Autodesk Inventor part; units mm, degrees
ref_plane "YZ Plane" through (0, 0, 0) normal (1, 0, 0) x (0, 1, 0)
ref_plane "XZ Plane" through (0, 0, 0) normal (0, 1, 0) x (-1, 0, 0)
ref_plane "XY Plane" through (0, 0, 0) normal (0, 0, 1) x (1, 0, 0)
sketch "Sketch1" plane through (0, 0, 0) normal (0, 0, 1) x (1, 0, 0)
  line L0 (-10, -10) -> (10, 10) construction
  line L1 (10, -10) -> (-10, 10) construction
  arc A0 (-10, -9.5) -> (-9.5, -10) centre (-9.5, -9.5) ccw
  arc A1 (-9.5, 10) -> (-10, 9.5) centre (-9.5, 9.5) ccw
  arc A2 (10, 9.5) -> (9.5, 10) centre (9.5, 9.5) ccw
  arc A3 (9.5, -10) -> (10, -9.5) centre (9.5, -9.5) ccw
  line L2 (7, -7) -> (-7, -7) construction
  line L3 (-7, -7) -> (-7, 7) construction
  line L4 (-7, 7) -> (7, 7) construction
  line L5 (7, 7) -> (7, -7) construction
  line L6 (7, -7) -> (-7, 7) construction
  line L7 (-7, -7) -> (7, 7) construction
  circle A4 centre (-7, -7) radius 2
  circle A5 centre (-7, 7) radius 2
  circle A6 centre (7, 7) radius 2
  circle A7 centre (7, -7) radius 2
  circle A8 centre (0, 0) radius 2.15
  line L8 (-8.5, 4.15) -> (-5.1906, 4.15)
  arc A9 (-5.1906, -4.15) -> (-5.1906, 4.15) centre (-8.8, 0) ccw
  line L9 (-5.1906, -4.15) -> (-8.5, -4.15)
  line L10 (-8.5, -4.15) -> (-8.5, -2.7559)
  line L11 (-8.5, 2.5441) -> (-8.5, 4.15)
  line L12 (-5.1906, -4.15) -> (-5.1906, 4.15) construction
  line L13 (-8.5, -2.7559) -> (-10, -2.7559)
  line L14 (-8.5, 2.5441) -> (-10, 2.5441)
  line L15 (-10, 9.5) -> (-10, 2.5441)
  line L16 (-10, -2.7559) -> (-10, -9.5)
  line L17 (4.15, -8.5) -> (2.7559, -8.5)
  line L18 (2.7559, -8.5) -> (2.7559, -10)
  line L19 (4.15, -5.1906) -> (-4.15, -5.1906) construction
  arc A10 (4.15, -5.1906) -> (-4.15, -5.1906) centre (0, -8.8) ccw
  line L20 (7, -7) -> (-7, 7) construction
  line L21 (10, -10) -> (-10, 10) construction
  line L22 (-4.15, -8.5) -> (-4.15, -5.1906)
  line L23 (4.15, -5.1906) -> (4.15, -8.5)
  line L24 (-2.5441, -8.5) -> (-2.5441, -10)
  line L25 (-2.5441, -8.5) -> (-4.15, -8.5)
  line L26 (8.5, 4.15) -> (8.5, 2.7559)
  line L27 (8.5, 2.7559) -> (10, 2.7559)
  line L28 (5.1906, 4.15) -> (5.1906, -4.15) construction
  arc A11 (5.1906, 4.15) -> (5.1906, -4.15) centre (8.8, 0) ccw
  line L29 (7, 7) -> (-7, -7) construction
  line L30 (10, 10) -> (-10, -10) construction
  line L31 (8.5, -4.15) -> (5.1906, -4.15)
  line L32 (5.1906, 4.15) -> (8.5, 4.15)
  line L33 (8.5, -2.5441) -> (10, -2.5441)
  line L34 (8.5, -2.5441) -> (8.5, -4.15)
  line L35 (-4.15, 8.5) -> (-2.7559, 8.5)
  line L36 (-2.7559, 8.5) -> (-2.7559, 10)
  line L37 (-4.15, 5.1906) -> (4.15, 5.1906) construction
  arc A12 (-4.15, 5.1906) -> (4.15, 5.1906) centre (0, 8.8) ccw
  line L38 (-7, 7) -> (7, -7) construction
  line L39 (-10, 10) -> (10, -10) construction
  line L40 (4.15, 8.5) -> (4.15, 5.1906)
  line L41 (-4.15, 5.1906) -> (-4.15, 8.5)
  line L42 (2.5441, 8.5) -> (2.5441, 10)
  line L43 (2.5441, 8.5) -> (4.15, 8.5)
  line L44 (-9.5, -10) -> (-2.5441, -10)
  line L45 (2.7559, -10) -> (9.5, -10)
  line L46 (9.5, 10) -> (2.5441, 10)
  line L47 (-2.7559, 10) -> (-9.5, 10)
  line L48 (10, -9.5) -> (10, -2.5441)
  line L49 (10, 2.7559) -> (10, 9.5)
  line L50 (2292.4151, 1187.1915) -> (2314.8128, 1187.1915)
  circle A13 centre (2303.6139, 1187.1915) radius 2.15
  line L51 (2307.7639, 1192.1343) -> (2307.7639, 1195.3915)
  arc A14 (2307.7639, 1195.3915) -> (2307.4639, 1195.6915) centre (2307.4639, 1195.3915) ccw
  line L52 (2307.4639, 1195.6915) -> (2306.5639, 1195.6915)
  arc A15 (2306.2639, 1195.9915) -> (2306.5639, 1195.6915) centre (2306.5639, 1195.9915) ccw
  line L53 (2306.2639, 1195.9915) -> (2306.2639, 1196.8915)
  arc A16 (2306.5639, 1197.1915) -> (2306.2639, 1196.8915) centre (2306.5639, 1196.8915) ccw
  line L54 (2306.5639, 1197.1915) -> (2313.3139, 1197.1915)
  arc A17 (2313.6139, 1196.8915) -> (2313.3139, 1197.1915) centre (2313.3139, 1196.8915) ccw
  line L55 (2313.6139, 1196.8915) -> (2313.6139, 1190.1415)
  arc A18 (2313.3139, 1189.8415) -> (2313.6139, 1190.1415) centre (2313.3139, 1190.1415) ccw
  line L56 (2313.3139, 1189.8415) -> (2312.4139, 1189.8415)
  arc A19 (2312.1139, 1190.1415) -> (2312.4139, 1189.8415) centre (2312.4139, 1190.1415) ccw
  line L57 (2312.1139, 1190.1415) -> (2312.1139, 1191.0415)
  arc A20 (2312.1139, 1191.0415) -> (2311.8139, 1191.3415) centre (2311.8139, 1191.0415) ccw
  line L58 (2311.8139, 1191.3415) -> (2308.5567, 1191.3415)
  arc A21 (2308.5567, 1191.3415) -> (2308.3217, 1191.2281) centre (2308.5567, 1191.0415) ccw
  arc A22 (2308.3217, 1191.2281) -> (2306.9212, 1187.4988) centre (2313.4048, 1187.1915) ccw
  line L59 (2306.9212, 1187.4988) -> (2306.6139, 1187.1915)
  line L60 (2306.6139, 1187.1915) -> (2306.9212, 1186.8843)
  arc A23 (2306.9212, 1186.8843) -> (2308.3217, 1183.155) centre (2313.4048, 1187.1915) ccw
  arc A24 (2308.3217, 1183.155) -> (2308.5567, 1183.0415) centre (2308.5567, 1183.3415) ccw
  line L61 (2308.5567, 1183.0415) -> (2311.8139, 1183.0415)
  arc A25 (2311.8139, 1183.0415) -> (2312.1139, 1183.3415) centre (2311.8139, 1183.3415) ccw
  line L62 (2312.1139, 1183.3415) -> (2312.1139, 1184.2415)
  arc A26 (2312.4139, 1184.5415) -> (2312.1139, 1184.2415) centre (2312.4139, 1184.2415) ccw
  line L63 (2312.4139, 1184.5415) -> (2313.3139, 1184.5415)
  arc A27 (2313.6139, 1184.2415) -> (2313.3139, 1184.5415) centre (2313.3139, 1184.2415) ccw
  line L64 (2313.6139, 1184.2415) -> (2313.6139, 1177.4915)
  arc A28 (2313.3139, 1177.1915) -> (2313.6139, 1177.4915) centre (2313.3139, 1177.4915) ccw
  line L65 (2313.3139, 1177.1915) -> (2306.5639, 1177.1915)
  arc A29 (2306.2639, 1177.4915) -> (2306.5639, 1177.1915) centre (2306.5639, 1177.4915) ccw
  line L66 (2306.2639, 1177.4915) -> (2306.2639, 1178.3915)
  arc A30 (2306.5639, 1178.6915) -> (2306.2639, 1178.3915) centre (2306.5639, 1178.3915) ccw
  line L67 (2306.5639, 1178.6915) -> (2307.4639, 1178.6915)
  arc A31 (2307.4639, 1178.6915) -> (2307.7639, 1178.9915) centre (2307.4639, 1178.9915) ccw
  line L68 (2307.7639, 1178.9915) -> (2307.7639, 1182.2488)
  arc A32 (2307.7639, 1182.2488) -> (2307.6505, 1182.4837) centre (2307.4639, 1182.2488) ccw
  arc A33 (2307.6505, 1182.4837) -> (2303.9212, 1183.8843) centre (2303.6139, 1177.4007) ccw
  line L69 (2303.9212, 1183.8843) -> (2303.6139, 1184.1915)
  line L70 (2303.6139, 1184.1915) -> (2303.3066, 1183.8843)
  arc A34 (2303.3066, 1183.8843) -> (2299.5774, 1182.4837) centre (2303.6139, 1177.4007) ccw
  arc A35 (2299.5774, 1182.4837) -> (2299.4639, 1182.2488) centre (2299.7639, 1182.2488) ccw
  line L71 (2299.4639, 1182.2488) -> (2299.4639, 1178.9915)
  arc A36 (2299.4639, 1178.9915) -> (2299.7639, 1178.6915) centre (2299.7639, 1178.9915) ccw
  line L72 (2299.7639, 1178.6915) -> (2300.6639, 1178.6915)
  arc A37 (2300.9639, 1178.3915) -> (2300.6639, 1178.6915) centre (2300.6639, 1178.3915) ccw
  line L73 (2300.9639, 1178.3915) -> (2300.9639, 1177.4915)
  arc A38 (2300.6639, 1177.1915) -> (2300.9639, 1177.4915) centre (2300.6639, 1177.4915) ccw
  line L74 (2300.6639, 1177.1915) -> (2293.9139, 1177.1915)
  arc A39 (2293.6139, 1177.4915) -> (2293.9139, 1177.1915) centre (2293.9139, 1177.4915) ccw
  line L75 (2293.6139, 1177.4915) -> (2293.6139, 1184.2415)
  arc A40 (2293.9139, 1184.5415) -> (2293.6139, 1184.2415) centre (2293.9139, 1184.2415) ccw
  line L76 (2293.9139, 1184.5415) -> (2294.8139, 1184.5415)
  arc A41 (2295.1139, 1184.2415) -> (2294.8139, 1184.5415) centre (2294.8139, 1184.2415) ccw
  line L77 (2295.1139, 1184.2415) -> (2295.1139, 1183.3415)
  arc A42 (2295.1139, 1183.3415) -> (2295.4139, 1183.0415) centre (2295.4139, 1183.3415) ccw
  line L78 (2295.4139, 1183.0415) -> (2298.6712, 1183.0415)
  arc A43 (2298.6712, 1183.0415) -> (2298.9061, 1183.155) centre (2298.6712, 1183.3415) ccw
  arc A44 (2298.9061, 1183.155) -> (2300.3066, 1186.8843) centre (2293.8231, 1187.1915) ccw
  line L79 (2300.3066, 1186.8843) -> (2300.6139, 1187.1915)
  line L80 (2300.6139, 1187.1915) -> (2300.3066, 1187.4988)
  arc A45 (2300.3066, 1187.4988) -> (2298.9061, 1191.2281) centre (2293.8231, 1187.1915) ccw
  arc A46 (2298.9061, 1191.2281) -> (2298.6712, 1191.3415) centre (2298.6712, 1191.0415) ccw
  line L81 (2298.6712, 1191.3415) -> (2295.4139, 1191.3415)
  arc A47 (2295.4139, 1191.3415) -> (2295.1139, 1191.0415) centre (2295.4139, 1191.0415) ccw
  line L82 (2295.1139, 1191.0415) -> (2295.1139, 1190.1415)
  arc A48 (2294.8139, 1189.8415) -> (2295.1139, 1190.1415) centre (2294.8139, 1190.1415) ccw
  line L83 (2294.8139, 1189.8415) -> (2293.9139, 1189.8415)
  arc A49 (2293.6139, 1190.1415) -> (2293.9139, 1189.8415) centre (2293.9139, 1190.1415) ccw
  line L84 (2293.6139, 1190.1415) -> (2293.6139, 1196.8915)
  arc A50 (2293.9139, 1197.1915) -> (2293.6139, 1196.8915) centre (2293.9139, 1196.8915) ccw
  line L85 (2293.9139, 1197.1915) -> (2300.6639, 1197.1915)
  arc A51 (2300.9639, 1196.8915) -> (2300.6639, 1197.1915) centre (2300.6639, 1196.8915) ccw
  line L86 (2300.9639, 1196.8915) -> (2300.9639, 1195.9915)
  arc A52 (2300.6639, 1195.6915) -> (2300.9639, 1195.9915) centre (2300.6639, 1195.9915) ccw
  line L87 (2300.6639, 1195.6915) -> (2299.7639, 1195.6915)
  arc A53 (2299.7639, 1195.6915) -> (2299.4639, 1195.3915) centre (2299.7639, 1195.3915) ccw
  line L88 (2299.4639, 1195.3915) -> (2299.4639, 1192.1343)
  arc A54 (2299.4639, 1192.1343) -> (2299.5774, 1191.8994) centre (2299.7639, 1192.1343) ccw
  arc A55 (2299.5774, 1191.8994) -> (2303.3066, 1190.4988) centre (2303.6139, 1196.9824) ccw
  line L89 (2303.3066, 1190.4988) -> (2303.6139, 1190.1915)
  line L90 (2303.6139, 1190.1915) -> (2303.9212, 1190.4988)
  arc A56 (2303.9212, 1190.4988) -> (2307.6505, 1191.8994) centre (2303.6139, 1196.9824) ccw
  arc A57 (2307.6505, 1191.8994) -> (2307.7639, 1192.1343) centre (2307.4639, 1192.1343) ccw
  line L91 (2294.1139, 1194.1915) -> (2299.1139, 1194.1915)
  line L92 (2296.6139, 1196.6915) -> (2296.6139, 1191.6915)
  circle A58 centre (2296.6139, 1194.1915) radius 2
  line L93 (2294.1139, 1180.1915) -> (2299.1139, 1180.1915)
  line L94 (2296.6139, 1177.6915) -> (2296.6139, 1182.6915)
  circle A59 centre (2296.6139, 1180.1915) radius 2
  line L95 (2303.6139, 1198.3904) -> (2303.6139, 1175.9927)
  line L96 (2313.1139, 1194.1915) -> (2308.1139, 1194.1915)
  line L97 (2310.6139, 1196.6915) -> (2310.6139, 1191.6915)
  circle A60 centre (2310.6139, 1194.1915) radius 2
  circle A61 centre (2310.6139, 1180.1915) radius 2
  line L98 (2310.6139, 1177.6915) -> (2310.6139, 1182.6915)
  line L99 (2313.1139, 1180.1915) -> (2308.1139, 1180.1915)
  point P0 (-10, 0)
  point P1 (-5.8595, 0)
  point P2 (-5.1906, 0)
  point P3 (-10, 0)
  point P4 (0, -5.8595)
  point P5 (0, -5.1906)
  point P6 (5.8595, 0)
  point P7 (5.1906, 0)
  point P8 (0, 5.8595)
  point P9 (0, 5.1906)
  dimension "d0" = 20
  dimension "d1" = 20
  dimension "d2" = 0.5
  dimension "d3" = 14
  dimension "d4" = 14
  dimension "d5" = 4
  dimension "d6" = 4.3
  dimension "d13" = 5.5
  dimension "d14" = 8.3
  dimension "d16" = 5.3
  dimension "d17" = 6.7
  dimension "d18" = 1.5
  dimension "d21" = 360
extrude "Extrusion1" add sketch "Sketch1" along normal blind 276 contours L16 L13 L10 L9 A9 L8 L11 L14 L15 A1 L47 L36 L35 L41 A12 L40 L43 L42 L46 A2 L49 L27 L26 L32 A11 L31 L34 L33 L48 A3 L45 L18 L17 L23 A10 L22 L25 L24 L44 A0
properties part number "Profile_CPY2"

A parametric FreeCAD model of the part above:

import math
import FreeCAD as App
import Part
import Sketcher

doc = App.newDocument("Part")
body = doc.addObject("PartDesign::Body", "Body")

# Sketch on XY plane
sketch1 = body.newObject("Sketcher::SketchObject", "Sketch")
sketch1.AttachmentSupport = (doc.getObject("XY_Plane"), [""])
sketch1.MapMode = "FlatFace"
sketch1.addGeometry([
    Part.LineSegment(App.Vector(-10, -2.8, 0), App.Vector(-10, -9.5, 0)),  # 0
    Part.ArcOfCircle(Part.Circle(App.Vector(-9.5, -9.5, 0), App.Vector(0, 0, 1), 0.5), math.radians(180), math.radians(270)),  # 1
    Part.LineSegment(App.Vector(-9.5, -10, 0), App.Vector(-2.5, -10, 0)),  # 2
    Part.LineSegment(App.Vector(-2.5, -10, 0), App.Vector(-2.5, -8.5, 0)),  # 3
    Part.LineSegment(App.Vector(-2.5, -8.5, 0), App.Vector(-4.2, -8.5, 0)),  # 4
    Part.LineSegment(App.Vector(-4.2, -8.5, 0), App.Vector(-4.2, -5.2, 0)),  # 5
    Part.ArcOfCircle(Part.Circle(App.Vector(0, -8.8, 0), App.Vector(0, 0, 1), 5.5), math.radians(41), math.radians(139)),  # 6
    Part.LineSegment(App.Vector(4.2, -5.2, 0), App.Vector(4.2, -8.5, 0)),  # 7
    Part.LineSegment(App.Vector(4.2, -8.5, 0), App.Vector(2.8, -8.5, 0)),  # 8
    Part.LineSegment(App.Vector(2.8, -8.5, 0), App.Vector(2.8, -10, 0)),  # 9
    Part.LineSegment(App.Vector(2.8, -10, 0), App.Vector(9.5, -10, 0)),  # 10
    Part.ArcOfCircle(Part.Circle(App.Vector(9.5, -9.5, 0), App.Vector(0, 0, 1), 0.5), math.radians(-90), math.radians(0)),  # 11
    Part.LineSegment(App.Vector(10, -9.5, 0), App.Vector(10, -2.5, 0)),  # 12
    Part.LineSegment(App.Vector(10, -2.5, 0), App.Vector(8.5, -2.5, 0)),  # 13
    Part.LineSegment(App.Vector(8.5, -2.5, 0), App.Vector(8.5, -4.2, 0)),  # 14
    Part.LineSegment(App.Vector(8.5, -4.2, 0), App.Vector(5.2, -4.2, 0)),  # 15
    Part.ArcOfCircle(Part.Circle(App.Vector(8.8, 0, 0), App.Vector(0, 0, 1), 5.5), math.radians(131), math.radians(229)),  # 16
    Part.LineSegment(App.Vector(5.2, 4.2, 0), App.Vector(8.5, 4.2, 0)),  # 17
    Part.LineSegment(App.Vector(8.5, 4.2, 0), App.Vector(8.5, 2.8, 0)),  # 18
    Part.LineSegment(App.Vector(8.5, 2.8, 0), App.Vector(10, 2.8, 0)),  # 19
    Part.LineSegment(App.Vector(10, 2.8, 0), App.Vector(10, 9.5, 0)),  # 20
    Part.ArcOfCircle(Part.Circle(App.Vector(9.5, 9.5, 0), App.Vector(0, 0, 1), 0.5), math.radians(0), math.radians(90)),  # 21
    Part.LineSegment(App.Vector(9.5, 10, 0), App.Vector(2.5, 10, 0)),  # 22
    Part.LineSegment(App.Vector(2.5, 10, 0), App.Vector(2.5, 8.5, 0)),  # 23
    Part.LineSegment(App.Vector(2.5, 8.5, 0), App.Vector(4.2, 8.5, 0)),  # 24
    Part.LineSegment(App.Vector(4.2, 8.5, 0), App.Vector(4.2, 5.2, 0)),  # 25
    Part.ArcOfCircle(Part.Circle(App.Vector(0, 8.8, 0), App.Vector(0, 0, 1), 5.5), math.radians(-139), math.radians(-41)),  # 26
    Part.LineSegment(App.Vector(-4.2, 5.2, 0), App.Vector(-4.2, 8.5, 0)),  # 27
    Part.LineSegment(App.Vector(-4.2, 8.5, 0), App.Vector(-2.8, 8.5, 0)),  # 28
    Part.LineSegment(App.Vector(-2.8, 8.5, 0), App.Vector(-2.8, 10, 0)),  # 29
    Part.LineSegment(App.Vector(-2.8, 10, 0), App.Vector(-9.5, 10, 0)),  # 30
    Part.ArcOfCircle(Part.Circle(App.Vector(-9.5, 9.5, 0), App.Vector(0, 0, 1), 0.5), math.radians(90), math.radians(180)),  # 31
    Part.LineSegment(App.Vector(-10, 9.5, 0), App.Vector(-10, 2.5, 0)),  # 32
    Part.LineSegment(App.Vector(-10, 2.5, 0), App.Vector(-8.5, 2.5, 0)),  # 33
    Part.LineSegment(App.Vector(-8.5, 2.5, 0), App.Vector(-8.5, 4.2, 0)),  # 34
    Part.LineSegment(App.Vector(-8.5, 4.2, 0), App.Vector(-5.2, 4.2, 0)),  # 35
    Part.ArcOfCircle(Part.Circle(App.Vector(-8.8, 0, 0), App.Vector(0, 0, 1), 5.5), math.radians(-49), math.radians(49)),  # 36
    Part.LineSegment(App.Vector(-5.2, -4.2, 0), App.Vector(-8.5, -4.2, 0)),  # 37
    Part.LineSegment(App.Vector(-8.5, -4.2, 0), App.Vector(-8.5, -2.8, 0)),  # 38
    Part.LineSegment(App.Vector(-8.5, -2.8, 0), App.Vector(-10, -2.8, 0)),  # 39
    Part.Circle(App.Vector(-7, -7, 0), App.Vector(0, 0, 1), 2),  # 40
    Part.Circle(App.Vector(7, -7, 0), App.Vector(0, 0, 1), 2),  # 41
    Part.Circle(App.Vector(0, 0, 0), App.Vector(0, 0, 1), 2.1),  # 42
    Part.Circle(App.Vector(-7, 7, 0), App.Vector(0, 0, 1), 2),  # 43
    Part.Circle(App.Vector(7, 7, 0), App.Vector(0, 0, 1), 2),  # 44
], False)
sketch1.addConstraint([
    Sketcher.Constraint("Tangent", 0, 2, 1, 1),
    Sketcher.Constraint("Tangent", 1, 2, 2, 1),
    Sketcher.Constraint("Coincident", 2, 2, 3, 1),
    Sketcher.Constraint("Coincident", 3, 2, 4, 1),
    Sketcher.Constraint("Coincident", 4, 2, 5, 1),
    Sketcher.Constraint("Coincident", 5, 2, 6, 2),
    Sketcher.Constraint("Coincident", 6, 1, 7, 1),
    Sketcher.Constraint("Coincident", 7, 2, 8, 1),
    Sketcher.Constraint("Coincident", 8, 2, 9, 1),
    Sketcher.Constraint("Coincident", 9, 2, 10, 1),
    Sketcher.Constraint("Tangent", 10, 2, 11, 1),
    Sketcher.Constraint("Tangent", 11, 2, 12, 1),
    Sketcher.Constraint("Coincident", 12, 2, 13, 1),
    Sketcher.Constraint("Coincident", 13, 2, 14, 1),
    Sketcher.Constraint("Coincident", 14, 2, 15, 1),
    Sketcher.Constraint("Coincident", 15, 2, 16, 2),
    Sketcher.Constraint("Coincident", 16, 1, 17, 1),
    Sketcher.Constraint("Coincident", 17, 2, 18, 1),
    Sketcher.Constraint("Coincident", 18, 2, 19, 1),
    Sketcher.Constraint("Coincident", 19, 2, 20, 1),
    Sketcher.Constraint("Tangent", 20, 2, 21, 1),
    Sketcher.Constraint("Tangent", 21, 2, 22, 1),
    Sketcher.Constraint("Coincident", 22, 2, 23, 1),
    Sketcher.Constraint("Coincident", 23, 2, 24, 1),
    Sketcher.Constraint("Coincident", 24, 2, 25, 1),
    Sketcher.Constraint("Coincident", 25, 2, 26, 2),
    Sketcher.Constraint("Coincident", 26, 1, 27, 1),
    Sketcher.Constraint("Coincident", 27, 2, 28, 1),
    Sketcher.Constraint("Coincident", 28, 2, 29, 1),
    Sketcher.Constraint("Coincident", 29, 2, 30, 1),
    Sketcher.Constraint("Tangent", 30, 2, 31, 1),
    Sketcher.Constraint("Tangent", 31, 2, 32, 1),
    Sketcher.Constraint("Coincident", 32, 2, 33, 1),
    Sketcher.Constraint("Coincident", 33, 2, 34, 1),
    Sketcher.Constraint("Coincident", 34, 2, 35, 1),
    Sketcher.Constraint("Coincident", 35, 2, 36, 2),
    Sketcher.Constraint("Coincident", 36, 1, 37, 1),
    Sketcher.Constraint("Coincident", 37, 2, 38, 1),
    Sketcher.Constraint("Coincident", 38, 2, 39, 1),
    Sketcher.Constraint("Coincident", 39, 2, 0, 1),
    Sketcher.Constraint("Vertical", 0),
    Sketcher.Constraint("Horizontal", 2),
    Sketcher.Constraint("Vertical", 3),
    Sketcher.Constraint("Horizontal", 4),
    Sketcher.Constraint("Vertical", 5),
    Sketcher.Constraint("Vertical", 7),
    Sketcher.Constraint("Horizontal", 8),
    Sketcher.Constraint("Vertical", 9),
    Sketcher.Constraint("Horizontal", 10),
    Sketcher.Constraint("Vertical", 12),
    Sketcher.Constraint("Horizontal", 13),
    Sketcher.Constraint("Vertical", 14),
    Sketcher.Constraint("Horizontal", 15),
    Sketcher.Constraint("Horizontal", 17),
    Sketcher.Constraint("Vertical", 18),
    Sketcher.Constraint("Horizontal", 19),
    Sketcher.Constraint("Vertical", 20),
    Sketcher.Constraint("Horizontal", 22),
    Sketcher.Constraint("Vertical", 23),
    Sketcher.Constraint("Horizontal", 24),
    Sketcher.Constraint("Vertical", 25),
    Sketcher.Constraint("Vertical", 27),
    Sketcher.Constraint("Horizontal", 28),
    Sketcher.Constraint("Vertical", 29),
    Sketcher.Constraint("Horizontal", 30),
    Sketcher.Constraint("Vertical", 32),
    Sketcher.Constraint("Horizontal", 33),
    Sketcher.Constraint("Vertical", 34),
    Sketcher.Constraint("Horizontal", 35),
    Sketcher.Constraint("Horizontal", 37),
    Sketcher.Constraint("Vertical", 38),
    Sketcher.Constraint("Horizontal", 39),
    Sketcher.Constraint("Coincident", 42, 3, -1, 1),
    Sketcher.Constraint("Equal", 1, 11),
    Sketcher.Constraint("Equal", 6, 16),
    Sketcher.Constraint("Equal", 11, 21),
    Sketcher.Constraint("Equal", 16, 26),
    Sketcher.Constraint("Equal", 21, 31),
    Sketcher.Constraint("Equal", 26, 36),
    Sketcher.Constraint("Equal", 40, 41),
    Sketcher.Constraint("Equal", 41, 43),
    Sketcher.Constraint("Equal", 43, 44),
    Sketcher.Constraint("Symmetric", 1, 3, 21, 3, -1, 1),
    Sketcher.Constraint("Symmetric", 6, 3, 26, 3, -1, 1),
    Sketcher.Constraint("Symmetric", 11, 3, 31, 3, -1, 1),
    Sketcher.Constraint("Symmetric", 16, 3, 36, 3, -1, 1),
    Sketcher.Constraint("Symmetric", 41, 3, 43, 3, -1, 1),
    Sketcher.Constraint("Symmetric", 40, 3, 44, 3, -1, 1),
    Sketcher.Constraint("Symmetric", 3, 2, 23, 2, -1, 1),
    Sketcher.Constraint("Symmetric", 7, 2, 27, 2, -1, 1),
    Sketcher.Constraint("Symmetric", 13, 2, 33, 2, -1, 1),
    Sketcher.Constraint("Symmetric", 17, 2, 37, 2, -1, 1),
    Sketcher.Constraint("Symmetric", 1, 3, 11, 3, -2),
    Sketcher.Constraint("Symmetric", 40, 3, 41, 3, -2),
    Sketcher.Constraint("Symmetric", 5, 2, 6, 1, -2),
    Sketcher.Constraint("Symmetric", 24, 2, 27, 2, -2),
    Sketcher.Constraint("Symmetric", 17, 2, 34, 2, -2),
    Sketcher.Constraint("Symmetric", 15, 2, 36, 1, -2),
    Sketcher.Constraint("Equal", 8, 28),
    Sketcher.Constraint("Equal", 30, 0),
    Sketcher.Constraint("Equal", 39, 3),
    Sketcher.Constraint("Equal", 37, 5),
    Sketcher.Constraint("Equal", 22, 12),
    Sketcher.Constraint("Equal", 24, 14),
    Sketcher.Constraint("Equal", 28, 18),
    Sketcher.Constraint("Diameter", 40, 4.0),
    Sketcher.Constraint("Diameter", 42, 4.3),
    Sketcher.Constraint("Radius", 1, 0.5),
    Sketcher.Constraint("Radius", 6, 5.5),
    Sketcher.Constraint("DistanceX", 13, 2, 13, 1, 1.5),
    Sketcher.Constraint("DistanceX", 40, 3, 41, 3, 14.0),
    Sketcher.Constraint("DistanceY", 40, 3, 43, 3, 14.0),
    Sketcher.Constraint("DistanceY", 3, 2, 40, 3, 1.5),
    Sketcher.Constraint("DistanceX", 3, 2, 8, 2, 5.3),
    Sketcher.Constraint("DistanceX", 41, 3, 13, 2, 1.5),
    Sketcher.Constraint("DistanceY", 6, 3, -1, 1, 8.8),
    Sketcher.Constraint("DistanceX", 2, 1, 2, 2, 6.956),
    Sketcher.Constraint("DistanceX", 4, 2, 4, 1, 1.606),
])
pad1 = body.newObject("PartDesign::Pad", "Pad")
pad1.Profile = sketch1
pad1.Length = 276

doc.recompute()
